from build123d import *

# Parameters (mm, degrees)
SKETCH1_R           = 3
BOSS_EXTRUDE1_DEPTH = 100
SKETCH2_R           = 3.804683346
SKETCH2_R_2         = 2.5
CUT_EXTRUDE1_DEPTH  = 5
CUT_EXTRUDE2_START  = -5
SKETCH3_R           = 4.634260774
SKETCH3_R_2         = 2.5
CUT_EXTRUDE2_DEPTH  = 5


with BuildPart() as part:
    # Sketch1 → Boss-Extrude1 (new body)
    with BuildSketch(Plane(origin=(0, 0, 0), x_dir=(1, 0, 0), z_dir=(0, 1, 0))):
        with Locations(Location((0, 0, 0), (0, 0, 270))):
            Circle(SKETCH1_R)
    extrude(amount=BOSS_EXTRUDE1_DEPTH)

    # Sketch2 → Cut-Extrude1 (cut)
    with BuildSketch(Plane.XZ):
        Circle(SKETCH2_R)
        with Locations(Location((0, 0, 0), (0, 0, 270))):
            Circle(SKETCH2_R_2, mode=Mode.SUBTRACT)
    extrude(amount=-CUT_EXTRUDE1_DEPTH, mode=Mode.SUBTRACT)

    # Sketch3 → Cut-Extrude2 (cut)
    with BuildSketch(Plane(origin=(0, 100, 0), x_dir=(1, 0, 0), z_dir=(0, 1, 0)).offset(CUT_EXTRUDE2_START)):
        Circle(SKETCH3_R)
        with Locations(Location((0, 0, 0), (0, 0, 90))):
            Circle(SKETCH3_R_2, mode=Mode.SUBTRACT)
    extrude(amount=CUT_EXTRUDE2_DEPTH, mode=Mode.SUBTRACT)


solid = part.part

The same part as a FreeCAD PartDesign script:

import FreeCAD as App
import Part
import Sketcher

V = App.Vector
Q = App.Units.Quantity

doc = App.newDocument("Part")
body = doc.addObject("PartDesign::Body", "Body")

# Sketch on XZ plane
sketch1 = body.newObject("Sketcher::SketchObject", "Sketch")
sketch1.AttachmentSupport = (doc.getObject("XZ_Plane"), [""])
sketch1.MapMode = "FlatFace"
sketch1.addGeometry(Part.Circle(V(0, 0, 0), V(0, 0, 1), 3), False)
sketch1.addConstraint([
    Sketcher.Constraint("Coincident", 0, 3, -1, 1),
    Sketcher.Constraint("Diameter", 0, Q("6 mm")),
])
pad1 = body.newObject("PartDesign::Pad", "Pad")
pad1.Profile = sketch1
pad1.Length = 100
pad1.Reversed = True

# Sketch on XZ plane
sketch2 = body.newObject("Sketcher::SketchObject", "Sketch001")
sketch2.AttachmentSupport = (doc.getObject("XZ_Plane"), [""])
sketch2.MapMode = "FlatFace"
sketch2.addGeometry([
    Part.Circle(V(0, 0, 0), V(0, 0, 1), 3.8),
    Part.Circle(V(0, 0, 0), V(0, 0, 1), 2.5),
], False)
sketch2.addConstraint([
    Sketcher.Constraint("Coincident", 0, 3, -1, 1),
    Sketcher.Constraint("Coincident", 1, 3, -1, 1),
    Sketcher.Constraint("Diameter", 1, Q("5 mm")),
    Sketcher.Constraint("Diameter", 0, Q("7.609367 mm")),
])
pocket1 = body.newObject("PartDesign::Pocket", "Pocket")
pocket1.Profile = sketch2
pocket1.Length = 5

# Sketch on XZ plane
sketch3 = body.newObject("Sketcher::SketchObject", "Sketch002")
sketch3.AttachmentSupport = (doc.getObject("XZ_Plane"), [""])
sketch3.MapMode = "FlatFace"
sketch3.AttachmentOffset = App.Placement(V(0, 0, -95), App.Rotation())
sketch3.addGeometry([
    Part.Circle(V(0, 0, 0), V(0, 0, 1), 4.6),
    Part.Circle(V(0, 0, 0), V(0, 0, 1), 2.5),
], False)
sketch3.addConstraint([
    Sketcher.Constraint("Coincident", 0, 3, -1, 1),
    Sketcher.Constraint("Coincident", 1, 3, -1, 1),
    Sketcher.Constraint("Diameter", 1, Q("5 mm")),
    Sketcher.Constraint("Diameter", 0, Q("9.268522 mm")),
])
pocket2 = body.newObject("PartDesign::Pocket", "Pocket001")
pocket2.Profile = sketch3
pocket2.Length = 5

doc.recompute()
